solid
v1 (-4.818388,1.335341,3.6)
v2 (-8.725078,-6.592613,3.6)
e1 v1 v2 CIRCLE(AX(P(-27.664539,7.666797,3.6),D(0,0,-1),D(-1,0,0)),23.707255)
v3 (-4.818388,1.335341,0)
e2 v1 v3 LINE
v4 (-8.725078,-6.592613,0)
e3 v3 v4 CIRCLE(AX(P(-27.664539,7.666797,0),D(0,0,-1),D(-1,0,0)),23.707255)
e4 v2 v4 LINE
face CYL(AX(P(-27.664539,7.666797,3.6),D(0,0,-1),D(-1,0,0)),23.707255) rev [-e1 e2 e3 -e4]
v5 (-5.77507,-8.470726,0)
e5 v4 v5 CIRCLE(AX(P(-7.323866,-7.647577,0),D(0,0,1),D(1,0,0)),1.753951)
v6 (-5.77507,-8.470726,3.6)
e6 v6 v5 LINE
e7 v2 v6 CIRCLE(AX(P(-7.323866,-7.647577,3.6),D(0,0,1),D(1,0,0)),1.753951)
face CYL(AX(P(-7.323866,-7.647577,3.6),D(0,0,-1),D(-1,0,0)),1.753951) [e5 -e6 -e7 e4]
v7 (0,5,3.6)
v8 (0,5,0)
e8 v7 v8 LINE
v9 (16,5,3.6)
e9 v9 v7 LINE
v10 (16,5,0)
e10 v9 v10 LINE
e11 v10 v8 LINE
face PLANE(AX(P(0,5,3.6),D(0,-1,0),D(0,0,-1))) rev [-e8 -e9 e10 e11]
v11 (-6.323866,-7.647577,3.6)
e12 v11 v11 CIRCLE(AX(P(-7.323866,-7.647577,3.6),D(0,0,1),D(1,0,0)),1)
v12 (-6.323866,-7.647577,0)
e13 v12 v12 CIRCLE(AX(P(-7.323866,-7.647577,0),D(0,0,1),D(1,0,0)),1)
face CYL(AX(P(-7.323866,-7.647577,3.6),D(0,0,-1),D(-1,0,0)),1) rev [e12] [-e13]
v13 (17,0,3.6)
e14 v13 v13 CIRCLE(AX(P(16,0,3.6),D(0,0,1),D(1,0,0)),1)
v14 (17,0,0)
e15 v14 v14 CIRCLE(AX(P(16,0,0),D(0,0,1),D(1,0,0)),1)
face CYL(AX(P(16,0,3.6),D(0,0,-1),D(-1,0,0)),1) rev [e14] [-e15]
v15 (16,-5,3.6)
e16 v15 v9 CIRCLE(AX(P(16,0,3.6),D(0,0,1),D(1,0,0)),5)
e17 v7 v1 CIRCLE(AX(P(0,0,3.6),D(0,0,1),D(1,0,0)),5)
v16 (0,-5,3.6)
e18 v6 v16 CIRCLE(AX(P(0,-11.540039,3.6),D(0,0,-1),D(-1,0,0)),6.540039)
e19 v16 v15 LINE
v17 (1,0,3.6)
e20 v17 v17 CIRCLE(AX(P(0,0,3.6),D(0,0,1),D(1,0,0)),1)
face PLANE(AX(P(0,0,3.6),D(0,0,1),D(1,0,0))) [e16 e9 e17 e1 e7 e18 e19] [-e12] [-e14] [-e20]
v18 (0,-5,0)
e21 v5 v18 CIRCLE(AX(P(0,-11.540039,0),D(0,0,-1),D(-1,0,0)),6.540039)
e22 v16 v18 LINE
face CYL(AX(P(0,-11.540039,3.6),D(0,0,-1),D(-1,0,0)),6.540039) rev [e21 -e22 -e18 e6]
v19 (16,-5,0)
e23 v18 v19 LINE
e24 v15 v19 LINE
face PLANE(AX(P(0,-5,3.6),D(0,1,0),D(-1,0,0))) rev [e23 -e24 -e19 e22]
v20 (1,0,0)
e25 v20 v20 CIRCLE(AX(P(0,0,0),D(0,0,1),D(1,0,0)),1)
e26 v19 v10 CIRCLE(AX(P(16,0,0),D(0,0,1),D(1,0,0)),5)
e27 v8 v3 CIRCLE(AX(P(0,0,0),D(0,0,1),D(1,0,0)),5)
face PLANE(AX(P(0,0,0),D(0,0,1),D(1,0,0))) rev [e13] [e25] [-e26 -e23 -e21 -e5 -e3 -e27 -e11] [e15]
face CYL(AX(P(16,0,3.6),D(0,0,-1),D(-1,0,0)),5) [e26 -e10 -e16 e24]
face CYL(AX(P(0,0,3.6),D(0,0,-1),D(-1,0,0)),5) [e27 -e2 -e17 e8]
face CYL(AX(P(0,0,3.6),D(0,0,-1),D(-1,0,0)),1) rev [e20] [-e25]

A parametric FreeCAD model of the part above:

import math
import FreeCAD as App
import Part
import Sketcher
from FreeCAD import Vector

doc = App.newDocument("Part")
body = doc.addObject("PartDesign::Body", "Body")

sketch1 = body.newObject("Sketcher::SketchObject", "Sketch")
sketch1.AttachmentSupport = (doc.getObject("XY_Plane"), [""])
sketch1.MapMode = "FlatFace"
sketch1.addGeometry([
    Part.LineSegment(Vector(16, 5, 0), Vector(0, 5, 0)),
    Part.ArcOfCircle(Part.Circle(Vector(0, 0, 0), Vector(0, 0, 1), 5), math.radians(90), math.radians(165)),
    Part.ArcOfCircle(Part.Circle(Vector(-27.7, 7.7, 0), Vector(0, 0, 1), 23.7), math.radians(-37), math.radians(-15)),
    Part.ArcOfCircle(Part.Circle(Vector(-7.3, -7.6, 0), Vector(0, 0, 1), 1.8), math.radians(143), math.radians(332)),
    Part.ArcOfCircle(Part.Circle(Vector(0, -11.5, 0), Vector(0, 0, 1), 6.5), math.radians(90), math.radians(152)),
    Part.LineSegment(Vector(0, -5, 0), Vector(16, -5, 0)),
    Part.ArcOfCircle(Part.Circle(Vector(16, 0, 0), Vector(0, 0, 1), 5), math.radians(-90), math.radians(90)),
    Part.Circle(Vector(-7.3, -7.6, 0), Vector(0, 0, 1), 1),
    Part.Circle(Vector(16, 0, 0), Vector(0, 0, 1), 1),
    Part.Circle(Vector(0, 0, 0), Vector(0, 0, 1), 1),
], False)
sketch1.addConstraint([
    Sketcher.Constraint("Tangent", 0, 2, 1, 1),
    Sketcher.Constraint("Tangent", 1, 2, 2, 2),
    Sketcher.Constraint("Tangent", 2, 1, 3, 1),
    Sketcher.Constraint("Tangent", 3, 2, 4, 2),
    Sketcher.Constraint("Tangent", 4, 1, 5, 1),
    Sketcher.Constraint("Tangent", 5, 2, 6, 1),
    Sketcher.Constraint("Tangent", 6, 2, 0, 1),
    Sketcher.Constraint("Horizontal", 0),
    Sketcher.Constraint("Horizontal", 5),
    Sketcher.Constraint("Coincident", 1, 3, -1, 1),
    Sketcher.Constraint("Coincident", 9, 3, -1, 1),
    Sketcher.Constraint("Coincident", 7, 3, 3, 3),
    Sketcher.Constraint("Coincident", 8, 3, 6, 3),
    Sketcher.Constraint("Equal", 1, 6),
    Sketcher.Constraint("Equal", 7, 8),
    Sketcher.Constraint("Equal", 8, 9),
    Sketcher.Constraint("PointOnObject", 4, 3, -2),
    Sketcher.Constraint("Diameter", 7, 2.0),
    Sketcher.Constraint("Radius", 1, 5.0),
    Sketcher.Constraint("DistanceX", 0, 2, 0, 1, 16.0),
    Sketcher.Constraint("Radius", 3, 1.753951),
    Sketcher.Constraint("Radius", 4, 6.540039),
    Sketcher.Constraint("Radius", 2, 23.707255),
    Sketcher.Constraint("DistanceX", 2, 3, -1, 1, 27.664539),
])
pad1 = body.newObject("PartDesign::Pad", "Pad")
pad1.Profile = sketch1
pad1.Length = 3.6

doc.recompute()
